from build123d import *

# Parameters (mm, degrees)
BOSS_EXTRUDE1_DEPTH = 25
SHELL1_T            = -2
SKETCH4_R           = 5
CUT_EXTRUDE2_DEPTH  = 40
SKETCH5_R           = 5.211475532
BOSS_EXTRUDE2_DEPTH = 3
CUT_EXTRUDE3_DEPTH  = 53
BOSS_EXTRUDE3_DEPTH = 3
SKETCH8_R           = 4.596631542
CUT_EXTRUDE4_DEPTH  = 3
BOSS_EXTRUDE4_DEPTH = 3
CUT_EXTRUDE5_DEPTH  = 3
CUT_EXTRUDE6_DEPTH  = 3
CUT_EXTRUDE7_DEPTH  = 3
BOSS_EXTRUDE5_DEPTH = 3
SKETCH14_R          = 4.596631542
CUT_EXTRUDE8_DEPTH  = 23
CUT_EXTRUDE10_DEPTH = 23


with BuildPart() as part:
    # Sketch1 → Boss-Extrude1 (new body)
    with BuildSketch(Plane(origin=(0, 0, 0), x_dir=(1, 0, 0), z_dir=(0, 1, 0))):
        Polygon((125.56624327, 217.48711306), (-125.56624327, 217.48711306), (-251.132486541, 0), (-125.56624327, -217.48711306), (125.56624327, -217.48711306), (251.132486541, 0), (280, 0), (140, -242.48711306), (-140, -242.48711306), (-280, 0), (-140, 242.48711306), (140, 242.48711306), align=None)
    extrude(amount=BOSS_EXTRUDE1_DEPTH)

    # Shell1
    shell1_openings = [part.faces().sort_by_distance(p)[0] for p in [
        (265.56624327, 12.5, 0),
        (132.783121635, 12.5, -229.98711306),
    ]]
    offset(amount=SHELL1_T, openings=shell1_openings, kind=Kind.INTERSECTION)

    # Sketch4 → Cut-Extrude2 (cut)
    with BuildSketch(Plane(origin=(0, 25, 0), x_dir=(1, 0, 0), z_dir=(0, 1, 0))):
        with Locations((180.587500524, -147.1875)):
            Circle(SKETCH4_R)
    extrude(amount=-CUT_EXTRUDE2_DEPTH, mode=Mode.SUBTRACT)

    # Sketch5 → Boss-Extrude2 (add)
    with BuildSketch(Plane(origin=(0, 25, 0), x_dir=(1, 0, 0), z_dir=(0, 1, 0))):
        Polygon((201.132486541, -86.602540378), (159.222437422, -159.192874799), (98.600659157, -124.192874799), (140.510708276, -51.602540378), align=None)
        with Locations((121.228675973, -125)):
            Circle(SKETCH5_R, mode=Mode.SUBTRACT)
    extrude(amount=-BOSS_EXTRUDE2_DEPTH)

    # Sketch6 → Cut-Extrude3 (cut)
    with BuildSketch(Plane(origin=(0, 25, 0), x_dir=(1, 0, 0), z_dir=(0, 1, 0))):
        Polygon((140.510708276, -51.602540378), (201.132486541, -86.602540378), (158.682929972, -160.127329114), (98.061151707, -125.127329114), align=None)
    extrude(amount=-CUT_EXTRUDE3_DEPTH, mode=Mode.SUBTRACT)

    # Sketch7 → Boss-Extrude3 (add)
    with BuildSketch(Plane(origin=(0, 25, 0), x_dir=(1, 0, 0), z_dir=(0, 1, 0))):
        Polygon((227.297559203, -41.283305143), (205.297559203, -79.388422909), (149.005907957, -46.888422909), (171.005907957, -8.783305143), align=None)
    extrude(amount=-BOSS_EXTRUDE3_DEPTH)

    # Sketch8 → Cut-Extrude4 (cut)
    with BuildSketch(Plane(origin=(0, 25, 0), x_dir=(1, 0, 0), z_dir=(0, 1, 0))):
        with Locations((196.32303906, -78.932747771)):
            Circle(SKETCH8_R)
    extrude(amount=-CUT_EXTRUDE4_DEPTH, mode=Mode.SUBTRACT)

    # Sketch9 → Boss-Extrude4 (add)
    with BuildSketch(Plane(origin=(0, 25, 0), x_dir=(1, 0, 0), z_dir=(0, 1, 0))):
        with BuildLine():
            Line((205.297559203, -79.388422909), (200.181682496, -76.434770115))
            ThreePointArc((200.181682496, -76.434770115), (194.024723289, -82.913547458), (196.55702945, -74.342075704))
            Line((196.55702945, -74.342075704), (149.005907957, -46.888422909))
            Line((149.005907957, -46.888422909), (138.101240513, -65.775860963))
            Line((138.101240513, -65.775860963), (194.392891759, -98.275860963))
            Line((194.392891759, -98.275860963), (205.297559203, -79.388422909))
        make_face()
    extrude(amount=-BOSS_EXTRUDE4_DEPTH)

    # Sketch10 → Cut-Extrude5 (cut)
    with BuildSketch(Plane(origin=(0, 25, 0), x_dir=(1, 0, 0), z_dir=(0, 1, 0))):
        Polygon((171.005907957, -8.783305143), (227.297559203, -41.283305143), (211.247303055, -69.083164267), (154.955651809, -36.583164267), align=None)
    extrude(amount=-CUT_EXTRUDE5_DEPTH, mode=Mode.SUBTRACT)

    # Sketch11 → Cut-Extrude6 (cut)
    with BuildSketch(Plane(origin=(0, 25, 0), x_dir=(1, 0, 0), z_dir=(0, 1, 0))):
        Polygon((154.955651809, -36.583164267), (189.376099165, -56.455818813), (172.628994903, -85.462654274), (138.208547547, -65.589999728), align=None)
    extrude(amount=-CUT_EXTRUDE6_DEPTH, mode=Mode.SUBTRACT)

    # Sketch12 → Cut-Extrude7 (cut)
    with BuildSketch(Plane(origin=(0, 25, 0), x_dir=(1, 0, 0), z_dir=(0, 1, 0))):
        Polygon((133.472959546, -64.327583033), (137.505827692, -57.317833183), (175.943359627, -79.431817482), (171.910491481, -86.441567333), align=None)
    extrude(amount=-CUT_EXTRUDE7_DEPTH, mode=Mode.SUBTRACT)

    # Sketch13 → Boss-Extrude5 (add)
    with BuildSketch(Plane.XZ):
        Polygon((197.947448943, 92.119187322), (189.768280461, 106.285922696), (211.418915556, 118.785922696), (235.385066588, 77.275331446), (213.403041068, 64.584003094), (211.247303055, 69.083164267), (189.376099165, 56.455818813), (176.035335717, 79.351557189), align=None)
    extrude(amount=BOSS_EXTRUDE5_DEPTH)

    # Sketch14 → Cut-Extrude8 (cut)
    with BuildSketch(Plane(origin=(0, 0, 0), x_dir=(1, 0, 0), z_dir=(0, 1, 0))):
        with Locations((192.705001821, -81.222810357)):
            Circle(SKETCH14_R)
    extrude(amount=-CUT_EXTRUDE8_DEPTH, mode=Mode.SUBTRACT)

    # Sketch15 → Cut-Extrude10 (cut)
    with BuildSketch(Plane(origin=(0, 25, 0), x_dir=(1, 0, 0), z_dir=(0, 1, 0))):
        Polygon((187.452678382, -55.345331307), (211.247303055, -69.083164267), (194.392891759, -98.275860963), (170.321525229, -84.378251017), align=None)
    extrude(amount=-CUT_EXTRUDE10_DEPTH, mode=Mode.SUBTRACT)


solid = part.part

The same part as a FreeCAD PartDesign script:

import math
import FreeCAD as App
import Part
import Sketcher

V = App.Vector
Q = App.Units.Quantity


def faces_at(feature, points):
    """Names of the faces that lie closest to the given points."""
    faces = feature.Shape.Faces
    near = lambda p: min(range(len(faces)), key=lambda i: faces[i].distToShape(Part.Vertex(*p))[0])
    return sorted({f"Face{near(p) + 1}" for p in points})


def add_polygon(sketch, points):
    """Adds a closed chain of lines whose ends are joined by coincident constraints."""
    first, n = sketch.GeometryCount, len(points)
    for a, b in zip(points, points[1:] + points[:1]):
        sketch.addGeometry(Part.LineSegment(App.Vector(*a, 0), App.Vector(*b, 0)), False)
    for i in range(n):
        sketch.addConstraint(Sketcher.Constraint("Coincident", first + i, 2, first + (i + 1) % n, 1))

doc = App.newDocument("Part")
body = doc.addObject("PartDesign::Body", "Body")

# Sketch on XZ plane
sketch1 = body.newObject("Sketcher::SketchObject", "Sketch")
sketch1.AttachmentSupport = (doc.getObject("XZ_Plane"), [""])
sketch1.MapMode = "FlatFace"
add_polygon(sketch1, [(-126, -217), (126, -217), (140, -242), (-140, -242), (-280, 0), (-140, 242), (140, 242), (280, 0), (251, 0), (126, 217), (-126, 217), (-251, 0)])  # lines 0-11
sketch1.addConstraint([
    Sketcher.Constraint("Horizontal", 0),
    Sketcher.Constraint("Horizontal", 2),
    Sketcher.Constraint("Horizontal", 5),
    Sketcher.Constraint("Horizontal", 7),
    Sketcher.Constraint("Horizontal", 9),
    Sketcher.Constraint("Symmetric", 1, 2, 4, 2, -1, 1),
    Sketcher.Constraint("Symmetric", 3, 2, 6, 2, -1, 1),
    Sketcher.Constraint("Symmetric", 0, 2, 9, 2, -1, 1),
    Sketcher.Constraint("Symmetric", 7, 2, 10, 2, -1, 1),
    Sketcher.Constraint("PointOnObject", 3, 2, -1),
    Sketcher.Constraint("Parallel", 1, 3),
    Sketcher.Constraint("Parallel", 3, 6),
    Sketcher.Constraint("Parallel", 6, 8),
    Sketcher.Constraint("Parallel", 4, 10),
    Sketcher.Constraint("Parallel", 8, 11),
    Sketcher.Constraint("Vertical", 2, 2, 4, 2),
    Sketcher.Constraint("DistanceX", 2, 2, 2, 1, 280.0),
    Sketcher.Constraint("Angle", 1, Q("-60 deg")),
    Sketcher.Constraint("Distance", 3, 280.0),
    Sketcher.Constraint("DistanceY", 1, 2, 0, 2, 25.0),
])
pad1 = body.newObject("PartDesign::Pad", "Pad")
pad1.Profile = sketch1
pad1.Length = 25
pad1.Reversed = True
doc.recompute()

thickness = body.newObject("PartDesign::Thickness", "Thickness")
thickness.Base = (pad1, faces_at(pad1, [(265.566, 12.5, 0), (132.783, 12.5, -229.987)]))
thickness.Value = 2
thickness.Reversed = True
thickness.Join = "Intersection"

# Sketch on XZ plane
sketch2 = body.newObject("Sketcher::SketchObject", "Sketch001")
sketch2.AttachmentSupport = (doc.getObject("XZ_Plane"), [""])
sketch2.MapMode = "FlatFace"
sketch2.AttachmentOffset = App.Placement(V(0, 0, -25), App.Rotation())
sketch2.addGeometry(Part.Circle(V(181, 147, 0), V(0, 0, 1), 5), False)
sketch2.addConstraint([
    Sketcher.Constraint("Diameter", 0, 10.0),
    Sketcher.Constraint("DistanceX", -1, 1, 0, 3, 180.587501),
    Sketcher.Constraint("DistanceY", -1, 1, 0, 3, 147.1875),
])
pocket1 = body.newObject("PartDesign::Pocket", "Pocket")
pocket1.Profile = sketch2
pocket1.Length = 40
pocket1.Reversed = True

# Sketch on XZ plane
sketch3 = body.newObject("Sketcher::SketchObject", "Sketch002")
sketch3.AttachmentSupport = (doc.getObject("XZ_Plane"), [""])
sketch3.MapMode = "FlatFace"
sketch3.AttachmentOffset = App.Placement(V(0, 0, -25), App.Rotation())
add_polygon(sketch3, [(159, 159), (201, 87), (141, 52), (99, 124)])  # lines 0-3
sketch3.addGeometry(Part.Circle(V(121, 125, 0), V(0, 0, 1), 5), False)  # 4
sketch3.addConstraint([
    Sketcher.Constraint("Perpendicular", 0, 1),
    Sketcher.Constraint("Perpendicular", 1, 2),
    Sketcher.Constraint("Perpendicular", 2, 3),
    Sketcher.Constraint("Angle", 0, Q("-60 deg")),
    Sketcher.Constraint("Distance", 1, 70.0),
    Sketcher.Constraint("DistanceY", -1, 1, 4, 3, 125.0),
    Sketcher.Constraint("Diameter", 4, 10.422951),
    Sketcher.Constraint("Distance", 0, 83.820098),
    Sketcher.Constraint("DistanceY", -1, 1, 0, 2, 86.60254),
    Sketcher.Constraint("DistanceX", -1, 1, 1, 2, 140.510708),
    Sketcher.Constraint("DistanceX", 4, 3, 0, 2, 79.903811),
])
pad2 = body.newObject("PartDesign::Pad", "Pad001")
pad2.Profile = sketch3
pad2.Length = 3

# Sketch on XZ plane
sketch4 = body.newObject("Sketcher::SketchObject", "Sketch003")
sketch4.AttachmentSupport = (doc.getObject("XZ_Plane"), [""])
sketch4.MapMode = "FlatFace"
sketch4.AttachmentOffset = App.Placement(V(0, 0, -25), App.Rotation())
add_polygon(sketch4, [(201, 87), (141, 52), (98, 125), (159, 160)])  # lines 0-3
sketch4.addConstraint([
    Sketcher.Constraint("Perpendicular", 0, 1),
    Sketcher.Constraint("Perpendicular", 1, 2),
    Sketcher.Constraint("Perpendicular", 2, 3),
    Sketcher.Constraint("Angle", 0, Q("-150 deg")),
    Sketcher.Constraint("Distance", 0, 70.0),
    Sketcher.Constraint("DistanceX", -1, 1, 0, 2, 140.510708),
    Sketcher.Constraint("DistanceY", -1, 1, 0, 2, 51.60254),
    Sketcher.Constraint("DistanceX", -1, 1, 1, 2, 98.061152),
])
pocket2 = body.newObject("PartDesign::Pocket", "Pocket001")
pocket2.Profile = sketch4
pocket2.Length = 53
pocket2.Reversed = True

# Sketch on XZ plane
sketch5 = body.newObject("Sketcher::SketchObject", "Sketch004")
sketch5.AttachmentSupport = (doc.getObject("XZ_Plane"), [""])
sketch5.MapMode = "FlatFace"
sketch5.AttachmentOffset = App.Placement(V(0, 0, -25), App.Rotation())
add_polygon(sketch5, [(205, 79), (227, 41), (171, 9), (149, 47)])  # lines 0-3
sketch5.addConstraint([
    Sketcher.Constraint("Perpendicular", 0, 1),
    Sketcher.Constraint("Perpendicular", 1, 2),
    Sketcher.Constraint("Perpendicular", 2, 3),
    Sketcher.Constraint("Angle", 0, Q("-60 deg")),
    Sketcher.Constraint("Distance", 0, 44.0),
    Sketcher.Constraint("Distance", 1, 65.0),
    Sketcher.Constraint("DistanceX", -1, 1, 0, 2, 227.297559),
    Sketcher.Constraint("DistanceY", -1, 1, 0, 2, 41.283305),
])
pad3 = body.newObject("PartDesign::Pad", "Pad002")
pad3.Profile = sketch5
pad3.Length = 3

# Sketch on XZ plane
sketch6 = body.newObject("Sketcher::SketchObject", "Sketch005")
sketch6.AttachmentSupport = (doc.getObject("XZ_Plane"), [""])
sketch6.MapMode = "FlatFace"
sketch6.AttachmentOffset = App.Placement(V(0, 0, -25), App.Rotation())
sketch6.addGeometry(Part.Circle(V(196.3, 78.9, 0), V(0, 0, 1), 4.6), False)
sketch6.addConstraint([
    Sketcher.Constraint("Diameter", 0, 9.193263),
    Sketcher.Constraint("DistanceX", -1, 1, 0, 3, 196.323039),
    Sketcher.Constraint("DistanceY", -1, 1, 0, 3, 78.932748),
])
pocket3 = body.newObject("PartDesign::Pocket", "Pocket002")
pocket3.Profile = sketch6
pocket3.Length = 3
pocket3.Reversed = True

# Sketch on XZ plane
sketch7 = body.newObject("Sketcher::SketchObject", "Sketch006")
sketch7.AttachmentSupport = (doc.getObject("XZ_Plane"), [""])
sketch7.MapMode = "FlatFace"
sketch7.AttachmentOffset = App.Placement(V(0, 0, -25), App.Rotation())
sketch7.addGeometry([
    Part.LineSegment(V(205.3, 79.4, 0), V(200.2, 76.4, 0)),  # 0
    Part.ArcOfCircle(Part.Circle(V(196.3, 78.9, 0), V(0, 0, 1), 4.6), math.radians(-33), math.radians(273)),  # 1
    Part.LineSegment(V(196.6, 74.3, 0), V(149, 46.9, 0)),  # 2
    Part.LineSegment(V(149, 46.9, 0), V(138.1, 65.8, 0)),  # 3
    Part.LineSegment(V(138.1, 65.8, 0), V(194.4, 98.3, 0)),  # 4
    Part.LineSegment(V(194.4, 98.3, 0), V(205.3, 79.4, 0)),  # 5
], False)
sketch7.addConstraint([
    Sketcher.Constraint("Coincident", 0, 2, 1, 1),
    Sketcher.Constraint("Coincident", 1, 2, 2, 1),
    Sketcher.Constraint("Coincident", 2, 2, 3, 1),
    Sketcher.Constraint("Coincident", 3, 2, 4, 1),
    Sketcher.Constraint("Coincident", 4, 2, 5, 1),
    Sketcher.Constraint("Coincident", 5, 2, 0, 1),
    Sketcher.Constraint("Parallel", 0, 2),
    Sketcher.Constraint("Perpendicular", 2, 3),
    Sketcher.Constraint("Perpendicular", 3, 4),
    Sketcher.Constraint("Perpendicular", 4, 5),
    Sketcher.Constraint("Equal", 3, 5),
    Sketcher.Constraint("Angle", 0, Q("-150 deg")),
    Sketcher.Constraint("Distance", 4, 65.0),
    Sketcher.Constraint("Radius", 1, 4.596632),
    Sketcher.Constraint("DistanceX", 3, 2, 1, 3, 58.221799),
    Sketcher.Constraint("DistanceX", -1, 1, 1, 3, 196.323039),
    Sketcher.Constraint("DistanceY", -1, 1, 0, 2, 76.43477),
    Sketcher.Constraint("DistanceX", -1, 1, 1, 2, 196.557029),
    Sketcher.Constraint("DistanceY", -1, 1, 3, 2, 65.775861),
])
pad4 = body.newObject("PartDesign::Pad", "Pad003")
pad4.Profile = sketch7
pad4.Length = 3

# Sketch on XZ plane
sketch8 = body.newObject("Sketcher::SketchObject", "Sketch007")
sketch8.AttachmentSupport = (doc.getObject("XZ_Plane"), [""])
sketch8.MapMode = "FlatFace"
sketch8.AttachmentOffset = App.Placement(V(0, 0, -25), App.Rotation())
add_polygon(sketch8, [(227, 41), (171, 9), (155, 37), (211, 69)])  # lines 0-3
sketch8.addConstraint([
    Sketcher.Constraint("Perpendicular", 0, 1),
    Sketcher.Constraint("Perpendicular", 1, 2),
    Sketcher.Constraint("Perpendicular", 2, 3),
    Sketcher.Constraint("Angle", 0, Q("-150 deg")),
    Sketcher.Constraint("Distance", 0, 65.0),
    Sketcher.Constraint("DistanceX", -1, 1, 1, 2, 154.955652),
    Sketcher.Constraint("DistanceX", -1, 1, 3, 2, 227.297559),
    Sketcher.Constraint("DistanceY", -1, 1, 0, 2, 8.783305),
])
pocket4 = body.newObject("PartDesign::Pocket", "Pocket003")
pocket4.Profile = sketch8
pocket4.Length = 3
pocket4.Reversed = True

# Sketch on XZ plane
sketch9 = body.newObject("Sketcher::SketchObject", "Sketch008")
sketch9.AttachmentSupport = (doc.getObject("XZ_Plane"), [""])
sketch9.MapMode = "FlatFace"
sketch9.AttachmentOffset = App.Placement(V(0, 0, -25), App.Rotation())
add_polygon(sketch9, [(189, 56), (155, 37), (138, 66), (173, 85)])  # lines 0-3
sketch9.addConstraint([
    Sketcher.Constraint("Perpendicular", 0, 1),
    Sketcher.Constraint("Perpendicular", 1, 2),
    Sketcher.Constraint("Perpendicular", 2, 3),
    Sketcher.Constraint("Angle", 0, Q("-150 deg")),
    Sketcher.Constraint("DistanceY", -1, 1, 1, 2, 65.59),
    Sketcher.Constraint("DistanceX", -1, 1, 3, 2, 189.376099),
    Sketcher.Constraint("Distance", 0, 39.745309),
    Sketcher.Constraint("Distance", 1, 33.494209),
])
pocket5 = body.newObject("PartDesign::Pocket", "Pocket004")
pocket5.Profile = sketch9
pocket5.Length = 3
pocket5.Reversed = True

# Sketch on XZ plane
sketch10 = body.newObject("Sketcher::SketchObject", "Sketch009")
sketch10.AttachmentSupport = (doc.getObject("XZ_Plane"), [""])
sketch10.MapMode = "FlatFace"
sketch10.AttachmentOffset = App.Placement(V(0, 0, -25), App.Rotation())
add_polygon(sketch10, [(138, 57), (133, 64), (172, 86), (176, 79)])  # lines 0-3
sketch10.addConstraint([
    Sketcher.Constraint("Perpendicular", 0, 1),
    Sketcher.Constraint("Perpendicular", 1, 2),
    Sketcher.Constraint("Perpendicular", 2, 3),
    Sketcher.Constraint("DistanceX", 0, 2, 2, 2, 42.4704),
    Sketcher.Constraint("DistanceX", -1, 1, 0, 2, 133.47296),
    Sketcher.Constraint("DistanceX", -1, 1, 1, 2, 171.910491),
    Sketcher.Constraint("DistanceY", 2, 2, 1, 2, 7.00975),
    Sketcher.Constraint("DistanceY", -1, 1, 0, 2, 64.327583),
])
pocket6 = body.newObject("PartDesign::Pocket", "Pocket005")
pocket6.Profile = sketch10
pocket6.Length = 3
pocket6.Reversed = True

# Sketch on XZ plane
sketch11 = body.newObject("Sketcher::SketchObject", "Sketch010")
sketch11.AttachmentSupport = (doc.getObject("XZ_Plane"), [""])
sketch11.MapMode = "FlatFace"
add_polygon(sketch11, [(189.8, 106.3), (197.9, 92.1), (176, 79.4), (189.4, 56.5), (211.2, 69.1), (213.4, 64.6), (235.4, 77.3), (211.4, 118.8)])  # lines 0-7
sketch11.addConstraint([
    Sketcher.Constraint("Perpendicular", 1, 2),
    Sketcher.Constraint("Perpendicular", 0, 3),
    Sketcher.Constraint("Parallel", 3, 5),
    Sketcher.Constraint("Perpendicular", 5, 6),
    Sketcher.Constraint("Perpendicular", 6, 7),
    Sketcher.Constraint("Angle", 0, Q("-60 deg")),
    Sketcher.Constraint("Distance", 7, 25.0),
    Sketcher.Constraint("DistanceX", -1, 1, 2, 2, 189.376099),
    Sketcher.Constraint("Distance", 3, 25.254691),
    Sketcher.Constraint("DistanceX", -1, 1, 0, 2, 197.947449),
    Sketcher.Constraint("DistanceY", -1, 1, 2, 2, 56.455819),
    Sketcher.Constraint("DistanceX", -1, 1, 4, 2, 213.403041),
    Sketcher.Constraint("DistanceY", -1, 1, 5, 2, 77.275331),
    Sketcher.Constraint("DistanceX", -1, 1, 7, 2, 189.76828),
    Sketcher.Constraint("DistanceY", 1, 2, 0, 2, 12.76763),
    Sketcher.Constraint("DistanceY", 2, 2, 1, 2, 22.895738),
])
pad5 = body.newObject("PartDesign::Pad", "Pad004")
pad5.Profile = sketch11
pad5.Length = 3

# Sketch on XZ plane
sketch12 = body.newObject("Sketcher::SketchObject", "Sketch011")
sketch12.AttachmentSupport = (doc.getObject("XZ_Plane"), [""])
sketch12.MapMode = "FlatFace"
sketch12.addGeometry(Part.Circle(V(192.7, 81.2, 0), V(0, 0, 1), 4.6), False)
sketch12.addConstraint([
    Sketcher.Constraint("Diameter", 0, 9.193263),
    Sketcher.Constraint("DistanceX", -1, 1, 0, 3, 192.705002),
    Sketcher.Constraint("DistanceY", -1, 1, 0, 3, 81.22281),
])
pocket7 = body.newObject("PartDesign::Pocket", "Pocket006")
pocket7.Profile = sketch12
pocket7.Length = 23
pocket7.Reversed = True

# Sketch on XZ plane
sketch13 = body.newObject("Sketcher::SketchObject", "Sketch012")
sketch13.AttachmentSupport = (doc.getObject("XZ_Plane"), [""])
sketch13.MapMode = "FlatFace"
sketch13.AttachmentOffset = App.Placement(V(0, 0, -25), App.Rotation())
add_polygon(sketch13, [(211, 69), (187, 55), (170, 84), (194, 98)])  # lines 0-3
sketch13.addConstraint([
    Sketcher.Constraint("Parallel", 0, 2),
    Sketcher.Constraint("Perpendicular", 2, 3),
    Sketcher.Constraint("Angle", 0, Q("-150 deg")),
    Sketcher.Constraint("Distance", 2, 27.79522),
    Sketcher.Constraint("DistanceX", -1, 1, 0, 2, 187.452678),
    Sketcher.Constraint("DistanceY", -1, 1, 0, 2, 55.345331),
    Sketcher.Constraint("DistanceY", -1, 1, 1, 2, 84.378251),
    Sketcher.Constraint("DistanceX", -1, 1, 2, 2, 194.392892),
])
pocket8 = body.newObject("PartDesign::Pocket", "Pocket007")
pocket8.Profile = sketch13
pocket8.Length = 23
pocket8.Reversed = True

doc.recompute()
